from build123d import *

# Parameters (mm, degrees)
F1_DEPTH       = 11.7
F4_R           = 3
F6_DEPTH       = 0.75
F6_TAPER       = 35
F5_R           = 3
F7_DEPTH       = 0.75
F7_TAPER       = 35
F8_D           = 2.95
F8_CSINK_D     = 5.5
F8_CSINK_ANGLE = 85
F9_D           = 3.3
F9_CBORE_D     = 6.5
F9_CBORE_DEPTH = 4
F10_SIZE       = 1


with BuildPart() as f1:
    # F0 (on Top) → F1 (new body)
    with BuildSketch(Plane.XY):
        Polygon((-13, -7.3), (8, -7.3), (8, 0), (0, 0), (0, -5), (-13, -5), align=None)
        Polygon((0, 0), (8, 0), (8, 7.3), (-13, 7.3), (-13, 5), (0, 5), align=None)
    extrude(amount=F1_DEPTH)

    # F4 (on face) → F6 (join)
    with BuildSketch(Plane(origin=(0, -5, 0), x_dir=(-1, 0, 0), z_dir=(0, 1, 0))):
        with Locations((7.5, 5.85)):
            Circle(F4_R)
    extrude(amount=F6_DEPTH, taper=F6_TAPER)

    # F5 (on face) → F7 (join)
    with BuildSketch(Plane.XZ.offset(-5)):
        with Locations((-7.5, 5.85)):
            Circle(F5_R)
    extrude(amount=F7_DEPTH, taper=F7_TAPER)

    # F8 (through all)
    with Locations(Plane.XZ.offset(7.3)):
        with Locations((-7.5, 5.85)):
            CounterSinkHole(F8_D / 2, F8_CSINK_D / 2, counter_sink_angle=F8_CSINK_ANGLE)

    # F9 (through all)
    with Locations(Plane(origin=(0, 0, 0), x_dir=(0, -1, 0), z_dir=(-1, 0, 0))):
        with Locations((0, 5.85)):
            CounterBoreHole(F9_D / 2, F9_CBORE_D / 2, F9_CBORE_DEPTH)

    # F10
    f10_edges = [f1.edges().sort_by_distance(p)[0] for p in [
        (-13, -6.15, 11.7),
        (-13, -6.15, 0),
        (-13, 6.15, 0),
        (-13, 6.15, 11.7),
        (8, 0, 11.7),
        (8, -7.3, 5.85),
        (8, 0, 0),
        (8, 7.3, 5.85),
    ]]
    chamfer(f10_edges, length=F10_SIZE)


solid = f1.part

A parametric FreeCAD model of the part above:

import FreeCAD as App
import Part
import Sketcher

V = App.Vector


def edges_at(feature, points):
    """Names of the edges that pass closest to the given points."""
    edges = feature.Shape.Edges
    near = lambda p: min(range(len(edges)), key=lambda i: edges[i].distToShape(Part.Vertex(*p))[0])
    return sorted({f"Edge{near(p) + 1}" for p in points})

doc = App.newDocument("Part")
body = doc.addObject("PartDesign::Body", "Body")

sketch1 = body.newObject("Sketcher::SketchObject", "Sketch")
sketch1.AttachmentSupport = (doc.getObject("XY_Plane"), [""])
sketch1.MapMode = "FlatFace"
sketch1.addGeometry([
    Part.LineSegment(V(-13, -7.3, 0), V(8, -7.3, 0)),
    Part.LineSegment(V(8, -7.3, 0), V(8, 7.3, 0)),
    Part.LineSegment(V(8, 7.3, 0), V(-13, 7.3, 0)),
    Part.LineSegment(V(-13, 7.3, 0), V(-13, 5, 0)),
    Part.LineSegment(V(-13, 5, 0), V(0, 5, 0)),
    Part.LineSegment(V(0, 5, 0), V(0, -5, 0)),
    Part.LineSegment(V(0, -5, 0), V(-13, -5, 0)),
    Part.LineSegment(V(-13, -5, 0), V(-13, -7.3, 0)),
], False)
sketch1.addConstraint([
    Sketcher.Constraint("Coincident", 0, 2, 1, 1),
    Sketcher.Constraint("Coincident", 1, 2, 2, 1),
    Sketcher.Constraint("Coincident", 2, 2, 3, 1),
    Sketcher.Constraint("Coincident", 3, 2, 4, 1),
    Sketcher.Constraint("Coincident", 4, 2, 5, 1),
    Sketcher.Constraint("Coincident", 5, 2, 6, 1),
    Sketcher.Constraint("Coincident", 6, 2, 7, 1),
    Sketcher.Constraint("Coincident", 7, 2, 0, 1),
    Sketcher.Constraint("Horizontal", 0),
    Sketcher.Constraint("Vertical", 1),
    Sketcher.Constraint("Horizontal", 2),
    Sketcher.Constraint("Vertical", 3),
    Sketcher.Constraint("Horizontal", 4),
    Sketcher.Constraint("Vertical", 5),
    Sketcher.Constraint("Horizontal", 6),
    Sketcher.Constraint("Vertical", 7),
    Sketcher.Constraint("Symmetric", 4, 2, 5, 2, -1, 1),
    Sketcher.Constraint("Symmetric", 2, 2, 7, 2, -1),
    Sketcher.Constraint("DistanceX", 0, 1, 0, 2, 21.0),
    Sketcher.Constraint("DistanceX", 4, 1, 4, 2, 13.0),
    Sketcher.Constraint("DistanceY", 5, 2, 5, 1, 10.0),
    Sketcher.Constraint("DistanceY", 1, 1, 1, 2, 14.6),
])
pad1 = body.newObject("PartDesign::Pad", "Pad")
pad1.Profile = sketch1
pad1.Length = 11.7

sketch2 = body.newObject("Sketcher::SketchObject", "Sketch001")
sketch2.AttachmentSupport = (doc.getObject("XZ_Plane"), [""])
sketch2.MapMode = "FlatFace"
sketch2.AttachmentOffset = App.Placement(V(0, 0, 5), App.Rotation())
sketch2.addGeometry(Part.Circle(V(-7.5, 5.85, 0), V(0, 0, 1), 3), False)
sketch2.addConstraint([
    Sketcher.Constraint("Diameter", 0, 6.0),
    Sketcher.Constraint("DistanceX", 0, 3, -1, 1, 7.5),
    Sketcher.Constraint("DistanceY", -1, 1, 0, 3, 5.85),
])
pad2 = body.newObject("PartDesign::Pad", "Pad001")
pad2.Profile = sketch2
pad2.Length = 0.75
pad2.Reversed = True
pad2.TaperAngle = -35

sketch3 = body.newObject("Sketcher::SketchObject", "Sketch002")
sketch3.AttachmentSupport = (doc.getObject("XZ_Plane"), [""])
sketch3.MapMode = "FlatFace"
sketch3.AttachmentOffset = App.Placement(V(0, 0, -5), App.Rotation())
sketch3.addGeometry(Part.Circle(V(-7.5, 5.85, 0), V(0, 0, 1), 3), False)
sketch3.addConstraint([
    Sketcher.Constraint("Diameter", 0, 6.0),
    Sketcher.Constraint("DistanceX", 0, 3, -1, 1, 7.5),
    Sketcher.Constraint("DistanceY", -1, 1, 0, 3, 5.85),
])
pad3 = body.newObject("PartDesign::Pad", "Pad002")
pad3.Profile = sketch3
pad3.Length = 0.75
pad3.TaperAngle = -35

sketch4 = body.newObject("Sketcher::SketchObject", "Sketch003")
sketch4.AttachmentSupport = (doc.getObject("XZ_Plane"), [""])
sketch4.MapMode = "FlatFace"
sketch4.AttachmentOffset = App.Placement(V(0, 0, 7.3), App.Rotation())
sketch4.addGeometry(Part.Circle(V(-7.5, 5.85, 0), V(0, 0, 1), 1.475), False)
sketch4.addConstraint([
    Sketcher.Constraint("Diameter", 0, 2.95),
    Sketcher.Constraint("DistanceX", 0, 3, -1, 1, 7.5),
    Sketcher.Constraint("DistanceY", -1, 1, 0, 3, 5.85),
])
doc.recompute()
hole = body.newObject("PartDesign::Hole", "Hole")
hole.Profile = sketch4
hole.ThreadType = "None"
hole.Diameter = 2.95
hole.DepthType = "ThroughAll"
hole.HoleCutType = "Countersink"
hole.HoleCutDiameter = 5.5
hole.HoleCutCountersinkAngle = 85

sketch5 = body.newObject("Sketcher::SketchObject", "Sketch004")
sketch5.AttachmentSupport = (doc.getObject("YZ_Plane"), [""])
sketch5.MapMode = "FlatFace"
sketch5.addGeometry(Part.Circle(V(0, 5.85, 0), V(0, 0, 1), 1.65), False)
sketch5.addConstraint([
    Sketcher.Constraint("PointOnObject", 0, 3, -2),
    Sketcher.Constraint("Diameter", 0, 3.3),
    Sketcher.Constraint("DistanceY", -1, 1, 0, 3, 5.85),
])
doc.recompute()
hole2 = body.newObject("PartDesign::Hole", "Hole001")
hole2.Profile = sketch5
hole2.ThreadType = "None"
hole2.Diameter = 3.3
hole2.DepthType = "ThroughAll"
hole2.HoleCutType = "Counterbore"
hole2.HoleCutDiameter = 6.5
hole2.HoleCutDepth = 4
hole2.Reversed = True
doc.recompute()

chamfer = body.newObject("PartDesign::Chamfer", "Chamfer")
chamfer.Base = (hole2, edges_at(hole2, [
    (-13, -6.15, 11.7),
    (-13, -6.15, 0),
    (-13, 6.15, 0),
    (-13, 6.15, 11.7),
    (8, 0, 11.7),
    (8, -7.3, 5.85),
    (8, 0, 0),
    (8, 7.3, 5.85),
]))
chamfer.Size = 1

doc.recompute()
